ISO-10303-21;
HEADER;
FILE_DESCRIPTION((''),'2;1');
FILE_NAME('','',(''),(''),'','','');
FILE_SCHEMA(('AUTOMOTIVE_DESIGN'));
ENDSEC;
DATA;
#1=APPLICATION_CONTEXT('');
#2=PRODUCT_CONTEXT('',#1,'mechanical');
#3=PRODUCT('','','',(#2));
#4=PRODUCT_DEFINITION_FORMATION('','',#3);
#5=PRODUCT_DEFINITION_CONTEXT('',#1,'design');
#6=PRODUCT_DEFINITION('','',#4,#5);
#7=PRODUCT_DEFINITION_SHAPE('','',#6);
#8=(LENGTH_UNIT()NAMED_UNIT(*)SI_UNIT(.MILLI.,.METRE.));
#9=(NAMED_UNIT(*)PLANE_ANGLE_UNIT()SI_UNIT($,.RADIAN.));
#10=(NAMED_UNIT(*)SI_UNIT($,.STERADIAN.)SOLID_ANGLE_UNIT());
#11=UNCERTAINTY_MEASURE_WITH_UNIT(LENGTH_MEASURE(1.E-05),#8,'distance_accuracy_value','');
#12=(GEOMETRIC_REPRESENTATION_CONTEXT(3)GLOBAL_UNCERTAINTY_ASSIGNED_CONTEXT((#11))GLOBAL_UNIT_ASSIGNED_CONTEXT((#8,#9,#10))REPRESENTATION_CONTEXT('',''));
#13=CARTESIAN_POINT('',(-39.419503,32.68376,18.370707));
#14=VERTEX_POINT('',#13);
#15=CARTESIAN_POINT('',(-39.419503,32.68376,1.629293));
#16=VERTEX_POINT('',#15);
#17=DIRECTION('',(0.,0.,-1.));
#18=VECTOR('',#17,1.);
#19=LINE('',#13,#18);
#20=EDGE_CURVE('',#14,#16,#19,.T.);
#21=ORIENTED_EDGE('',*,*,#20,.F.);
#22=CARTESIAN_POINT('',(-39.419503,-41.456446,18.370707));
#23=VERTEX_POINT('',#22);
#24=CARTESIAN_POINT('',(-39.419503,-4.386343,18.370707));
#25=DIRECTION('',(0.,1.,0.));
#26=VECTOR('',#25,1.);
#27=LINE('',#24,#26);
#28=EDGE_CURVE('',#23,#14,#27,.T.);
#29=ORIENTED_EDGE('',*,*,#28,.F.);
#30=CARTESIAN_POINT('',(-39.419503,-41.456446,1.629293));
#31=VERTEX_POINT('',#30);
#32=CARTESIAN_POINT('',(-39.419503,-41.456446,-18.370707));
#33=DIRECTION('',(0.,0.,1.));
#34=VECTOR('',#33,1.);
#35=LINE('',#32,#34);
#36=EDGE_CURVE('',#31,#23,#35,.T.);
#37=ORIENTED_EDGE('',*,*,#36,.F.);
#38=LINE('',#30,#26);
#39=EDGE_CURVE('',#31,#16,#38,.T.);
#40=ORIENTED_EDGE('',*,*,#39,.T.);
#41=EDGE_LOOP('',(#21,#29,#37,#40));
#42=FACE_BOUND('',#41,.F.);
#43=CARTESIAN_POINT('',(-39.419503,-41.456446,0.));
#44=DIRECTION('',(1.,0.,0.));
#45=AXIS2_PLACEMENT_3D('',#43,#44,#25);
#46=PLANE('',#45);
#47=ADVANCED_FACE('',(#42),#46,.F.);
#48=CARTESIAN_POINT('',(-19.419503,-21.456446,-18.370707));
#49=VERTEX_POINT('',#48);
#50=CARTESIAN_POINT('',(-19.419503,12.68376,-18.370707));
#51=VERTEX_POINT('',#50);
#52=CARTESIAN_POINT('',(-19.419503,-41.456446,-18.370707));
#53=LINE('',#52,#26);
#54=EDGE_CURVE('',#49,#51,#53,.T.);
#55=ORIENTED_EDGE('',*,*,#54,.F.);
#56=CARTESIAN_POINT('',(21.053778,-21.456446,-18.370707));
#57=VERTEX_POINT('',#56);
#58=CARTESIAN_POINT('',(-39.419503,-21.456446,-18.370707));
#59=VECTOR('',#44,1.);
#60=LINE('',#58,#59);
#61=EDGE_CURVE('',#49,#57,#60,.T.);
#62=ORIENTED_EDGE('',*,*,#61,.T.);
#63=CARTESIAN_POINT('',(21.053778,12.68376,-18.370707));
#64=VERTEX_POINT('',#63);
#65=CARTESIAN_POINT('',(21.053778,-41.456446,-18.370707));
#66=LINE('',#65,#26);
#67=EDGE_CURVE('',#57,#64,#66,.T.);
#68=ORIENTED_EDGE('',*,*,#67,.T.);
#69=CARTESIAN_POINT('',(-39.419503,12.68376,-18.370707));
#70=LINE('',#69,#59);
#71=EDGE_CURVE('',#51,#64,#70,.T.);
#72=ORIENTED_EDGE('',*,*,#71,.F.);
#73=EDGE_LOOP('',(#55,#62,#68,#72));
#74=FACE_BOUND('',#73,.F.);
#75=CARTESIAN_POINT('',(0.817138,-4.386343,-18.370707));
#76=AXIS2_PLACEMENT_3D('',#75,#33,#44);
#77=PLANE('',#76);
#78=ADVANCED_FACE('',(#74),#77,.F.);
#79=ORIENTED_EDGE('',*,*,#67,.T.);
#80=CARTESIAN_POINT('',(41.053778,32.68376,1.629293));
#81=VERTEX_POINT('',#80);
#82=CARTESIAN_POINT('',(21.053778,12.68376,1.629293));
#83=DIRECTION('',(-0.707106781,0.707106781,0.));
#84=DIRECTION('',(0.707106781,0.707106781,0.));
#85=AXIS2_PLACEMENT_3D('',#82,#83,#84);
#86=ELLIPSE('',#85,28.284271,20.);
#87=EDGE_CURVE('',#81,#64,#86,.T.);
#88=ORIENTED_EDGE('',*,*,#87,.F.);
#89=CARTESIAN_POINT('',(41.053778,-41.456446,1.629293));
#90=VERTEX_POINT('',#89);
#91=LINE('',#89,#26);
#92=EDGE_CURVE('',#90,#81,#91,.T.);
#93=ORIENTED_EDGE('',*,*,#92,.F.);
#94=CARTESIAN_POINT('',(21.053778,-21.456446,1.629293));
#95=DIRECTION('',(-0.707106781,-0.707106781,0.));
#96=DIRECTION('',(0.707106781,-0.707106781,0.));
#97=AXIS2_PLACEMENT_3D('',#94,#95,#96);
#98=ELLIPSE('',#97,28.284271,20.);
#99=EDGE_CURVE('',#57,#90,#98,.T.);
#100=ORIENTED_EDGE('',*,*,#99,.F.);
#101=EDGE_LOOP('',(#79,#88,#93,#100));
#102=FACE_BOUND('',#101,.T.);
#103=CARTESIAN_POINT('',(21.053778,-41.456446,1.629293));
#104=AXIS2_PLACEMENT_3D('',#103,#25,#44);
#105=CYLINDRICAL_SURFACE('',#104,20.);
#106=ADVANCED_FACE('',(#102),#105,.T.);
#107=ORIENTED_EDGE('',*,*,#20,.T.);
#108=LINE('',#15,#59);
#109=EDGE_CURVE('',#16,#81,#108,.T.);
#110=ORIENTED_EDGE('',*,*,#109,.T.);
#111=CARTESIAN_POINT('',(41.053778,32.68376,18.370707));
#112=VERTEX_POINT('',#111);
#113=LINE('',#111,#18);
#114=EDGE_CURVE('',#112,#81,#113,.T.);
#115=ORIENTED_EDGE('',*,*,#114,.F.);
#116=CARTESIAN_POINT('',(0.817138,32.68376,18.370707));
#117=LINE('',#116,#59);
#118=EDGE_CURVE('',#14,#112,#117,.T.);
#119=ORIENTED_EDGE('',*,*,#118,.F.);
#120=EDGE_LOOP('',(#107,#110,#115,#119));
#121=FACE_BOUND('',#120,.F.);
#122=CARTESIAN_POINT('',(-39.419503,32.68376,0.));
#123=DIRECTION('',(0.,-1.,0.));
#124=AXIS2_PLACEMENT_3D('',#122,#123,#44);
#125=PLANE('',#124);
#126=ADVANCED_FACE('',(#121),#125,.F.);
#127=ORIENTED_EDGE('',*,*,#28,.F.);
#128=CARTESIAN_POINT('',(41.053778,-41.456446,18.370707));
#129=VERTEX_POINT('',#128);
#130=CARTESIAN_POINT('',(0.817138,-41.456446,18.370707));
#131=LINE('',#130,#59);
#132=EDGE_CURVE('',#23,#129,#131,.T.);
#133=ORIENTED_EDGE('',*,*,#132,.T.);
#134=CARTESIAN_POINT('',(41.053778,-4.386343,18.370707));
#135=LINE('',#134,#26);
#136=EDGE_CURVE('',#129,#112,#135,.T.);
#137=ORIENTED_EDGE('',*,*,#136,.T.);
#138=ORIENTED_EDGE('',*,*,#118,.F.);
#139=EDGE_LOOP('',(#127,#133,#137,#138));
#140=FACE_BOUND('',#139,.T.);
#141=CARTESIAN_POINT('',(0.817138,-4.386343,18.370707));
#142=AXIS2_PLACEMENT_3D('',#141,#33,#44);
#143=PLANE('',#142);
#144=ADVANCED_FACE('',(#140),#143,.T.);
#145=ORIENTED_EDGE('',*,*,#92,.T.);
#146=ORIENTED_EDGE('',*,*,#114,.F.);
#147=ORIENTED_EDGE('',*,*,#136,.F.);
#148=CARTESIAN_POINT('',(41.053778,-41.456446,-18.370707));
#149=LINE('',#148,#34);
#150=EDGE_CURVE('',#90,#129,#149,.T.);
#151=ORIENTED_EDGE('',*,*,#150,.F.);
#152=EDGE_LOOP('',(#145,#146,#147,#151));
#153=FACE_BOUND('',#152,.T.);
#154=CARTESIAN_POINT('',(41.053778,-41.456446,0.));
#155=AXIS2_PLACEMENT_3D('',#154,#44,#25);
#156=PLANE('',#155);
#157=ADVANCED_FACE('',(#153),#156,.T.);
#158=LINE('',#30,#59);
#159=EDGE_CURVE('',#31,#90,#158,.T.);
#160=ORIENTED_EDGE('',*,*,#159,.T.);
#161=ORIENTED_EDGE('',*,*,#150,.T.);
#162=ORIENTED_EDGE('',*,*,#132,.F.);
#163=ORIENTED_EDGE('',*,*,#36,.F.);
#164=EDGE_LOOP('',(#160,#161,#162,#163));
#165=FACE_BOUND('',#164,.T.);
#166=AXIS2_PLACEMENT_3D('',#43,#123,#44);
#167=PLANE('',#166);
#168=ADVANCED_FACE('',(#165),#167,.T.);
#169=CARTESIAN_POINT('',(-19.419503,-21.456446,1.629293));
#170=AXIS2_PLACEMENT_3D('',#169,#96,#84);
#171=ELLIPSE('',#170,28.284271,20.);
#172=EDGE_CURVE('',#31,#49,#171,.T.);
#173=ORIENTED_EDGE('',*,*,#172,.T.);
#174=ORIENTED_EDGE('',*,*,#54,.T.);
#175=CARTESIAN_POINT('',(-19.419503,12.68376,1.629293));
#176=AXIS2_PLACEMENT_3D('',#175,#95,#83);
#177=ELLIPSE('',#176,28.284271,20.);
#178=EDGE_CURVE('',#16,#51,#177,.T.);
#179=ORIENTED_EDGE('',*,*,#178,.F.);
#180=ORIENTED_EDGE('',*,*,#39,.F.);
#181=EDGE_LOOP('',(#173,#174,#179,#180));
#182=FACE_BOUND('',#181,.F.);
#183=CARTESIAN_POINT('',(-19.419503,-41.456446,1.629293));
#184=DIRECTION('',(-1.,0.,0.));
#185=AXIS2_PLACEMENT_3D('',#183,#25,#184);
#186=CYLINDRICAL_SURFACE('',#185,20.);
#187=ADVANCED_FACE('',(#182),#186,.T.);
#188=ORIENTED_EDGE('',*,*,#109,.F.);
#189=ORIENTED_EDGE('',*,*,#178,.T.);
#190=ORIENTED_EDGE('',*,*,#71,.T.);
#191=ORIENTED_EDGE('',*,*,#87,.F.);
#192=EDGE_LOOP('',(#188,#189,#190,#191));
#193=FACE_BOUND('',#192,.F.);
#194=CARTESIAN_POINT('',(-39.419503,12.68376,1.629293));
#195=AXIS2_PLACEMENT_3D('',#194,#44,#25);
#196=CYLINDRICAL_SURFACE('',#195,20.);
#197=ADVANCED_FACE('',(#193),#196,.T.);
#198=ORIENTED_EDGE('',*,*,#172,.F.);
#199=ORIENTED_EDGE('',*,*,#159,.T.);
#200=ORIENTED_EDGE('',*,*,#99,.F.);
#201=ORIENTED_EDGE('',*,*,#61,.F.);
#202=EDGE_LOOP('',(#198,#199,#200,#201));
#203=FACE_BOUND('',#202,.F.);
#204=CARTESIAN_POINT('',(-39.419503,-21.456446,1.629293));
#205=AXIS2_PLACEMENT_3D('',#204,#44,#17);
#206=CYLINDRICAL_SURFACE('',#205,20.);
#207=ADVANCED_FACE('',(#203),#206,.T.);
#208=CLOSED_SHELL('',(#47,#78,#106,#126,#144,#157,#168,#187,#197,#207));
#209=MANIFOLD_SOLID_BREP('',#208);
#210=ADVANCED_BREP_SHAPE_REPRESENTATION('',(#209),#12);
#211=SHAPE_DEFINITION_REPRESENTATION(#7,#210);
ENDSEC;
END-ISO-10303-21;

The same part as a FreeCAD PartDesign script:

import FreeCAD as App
import Part
import Sketcher

V = App.Vector
Q = App.Units.Quantity


def edges_at(feature, points):
    """Names of the edges that pass closest to the given points."""
    edges = feature.Shape.Edges
    near = lambda p: min(range(len(edges)), key=lambda i: edges[i].distToShape(Part.Vertex(*p))[0])
    return sorted({f"Edge{near(p) + 1}" for p in points})


def add_polygon(sketch, points):
    """Adds a closed chain of lines whose ends are joined by coincident constraints."""
    first, n = sketch.GeometryCount, len(points)
    for a, b in zip(points, points[1:] + points[:1]):
        sketch.addGeometry(Part.LineSegment(App.Vector(*a, 0), App.Vector(*b, 0)), False)
    for i in range(n):
        sketch.addConstraint(Sketcher.Constraint("Coincident", first + i, 2, first + (i + 1) % n, 1))

doc = App.newDocument("Part")
body = doc.addObject("PartDesign::Body", "Body")

# Sketch on XY plane
sketch1 = doc.addObject("Sketcher::SketchObject", "Sketch")
body.addObject(sketch1)
sketch1.AttachmentSupport = (doc.XY_Plane, [""])
sketch1.MapMode = "FlatFace"
add_polygon(sketch1, [(-39, 33), (-39, -41), (41, -41), (41, 33)])  # lines 0-3
sketch1.addConstraint([
    Sketcher.Constraint("Vertical", 0),
    Sketcher.Constraint("Horizontal", 1),
    Sketcher.Constraint("Vertical", 2),
    Sketcher.Constraint("Horizontal", 3),
    Sketcher.Constraint("DistanceX", 1, 1, 1, 2, Q("80.473281 mm")),
    Sketcher.Constraint("DistanceY", 0, 2, 0, 1, Q("74.140206 mm")),
    Sketcher.Constraint("DistanceX", -1, 1, 1, 2, Q("41.053778 mm")),
    Sketcher.Constraint("DistanceY", -1, 1, 2, 2, Q("32.68376 mm")),
])
pad1 = doc.addObject("PartDesign::Pad", "Pad")
body.addObject(pad1)
pad1.Profile = sketch1
pad1.Length = 36.741414
pad1.Midplane = True
doc.recompute()

fillet = doc.addObject("PartDesign::Fillet", "Fillet")
body.addObject(fillet)
fillet.Base = (pad1, edges_at(pad1, [
    (-39.42, -4.386, -18.371),
    (0.817, 32.684, -18.371),
    (0.817, -41.456, -18.371),
    (41.054, -4.386, -18.371),
]))
fillet.Radius = 20

doc.recompute()
